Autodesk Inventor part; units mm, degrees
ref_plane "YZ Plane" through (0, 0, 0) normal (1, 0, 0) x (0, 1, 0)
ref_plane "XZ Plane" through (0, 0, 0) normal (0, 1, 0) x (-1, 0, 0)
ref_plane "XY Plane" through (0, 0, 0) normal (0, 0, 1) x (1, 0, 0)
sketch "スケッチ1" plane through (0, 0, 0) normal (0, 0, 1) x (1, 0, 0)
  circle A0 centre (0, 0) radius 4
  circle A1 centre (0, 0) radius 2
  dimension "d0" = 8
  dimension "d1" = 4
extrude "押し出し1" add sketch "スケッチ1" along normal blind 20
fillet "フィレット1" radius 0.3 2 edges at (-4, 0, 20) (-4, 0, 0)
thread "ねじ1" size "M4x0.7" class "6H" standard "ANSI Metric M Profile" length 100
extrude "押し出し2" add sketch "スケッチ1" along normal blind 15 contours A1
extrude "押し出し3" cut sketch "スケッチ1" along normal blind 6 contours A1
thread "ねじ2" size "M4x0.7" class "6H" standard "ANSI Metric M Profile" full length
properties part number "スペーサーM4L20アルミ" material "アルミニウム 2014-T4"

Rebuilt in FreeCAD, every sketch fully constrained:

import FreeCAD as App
import Part
import Sketcher

V = App.Vector


def edges_at(feature, points):
    """Names of the edges that pass closest to the given points."""
    edges = feature.Shape.Edges
    near = lambda p: min(range(len(edges)), key=lambda i: edges[i].distToShape(Part.Vertex(*p))[0])
    return sorted({f"Edge{near(p) + 1}" for p in points})

doc = App.newDocument("Part")
body = doc.addObject("PartDesign::Body", "Body")

sketch1 = body.newObject("Sketcher::SketchObject", "Sketch")
sketch1.AttachmentSupport = (doc.getObject("XY_Plane"), [""])
sketch1.MapMode = "FlatFace"
sketch1.addGeometry([
    Part.Circle(V(0, 0, 0), V(0, 0, 1), 4),
    Part.Circle(V(0, 0, 0), V(0, 0, 1), 2),
], False)
sketch1.addConstraint([
    Sketcher.Constraint("Coincident", 0, 3, -1, 1),
    Sketcher.Constraint("Coincident", 1, 3, -1, 1),
    Sketcher.Constraint("Diameter", 0, 8.0),
    Sketcher.Constraint("Diameter", 1, 4.0),
])
pad1 = body.newObject("PartDesign::Pad", "Pad")
pad1.Profile = sketch1
pad1.Length = 20
doc.recompute()

fillet = body.newObject("PartDesign::Fillet", "Fillet")
fillet.Base = (pad1, edges_at(pad1, [(-4, 0, 20), (-4, 0, 0)]))
fillet.Radius = 0.3

sketch2 = body.newObject("Sketcher::SketchObject", "Sketch001")
sketch2.AttachmentSupport = (doc.getObject("XY_Plane"), [""])
sketch2.MapMode = "FlatFace"
sketch2.addGeometry(Part.Circle(V(0, 0, 0), V(0, 0, 1), 2), False)
sketch2.addConstraint([
    Sketcher.Constraint("Coincident", 0, 3, -1, 1),
    Sketcher.Constraint("Diameter", 0, 4.0),
])
pad2 = body.newObject("PartDesign::Pad", "Pad001")
pad2.Profile = sketch2
pad2.Length = 15

sketch3 = body.newObject("Sketcher::SketchObject", "Sketch002")
sketch3.AttachmentSupport = (doc.getObject("XY_Plane"), [""])
sketch3.MapMode = "FlatFace"
sketch3.addGeometry(Part.Circle(V(0, 0, 0), V(0, 0, 1), 2), False)
sketch3.addConstraint([
    Sketcher.Constraint("Coincident", 0, 3, -1, 1),
    Sketcher.Constraint("Diameter", 0, 4.0),
])
pocket1 = body.newObject("PartDesign::Pocket", "Pocket")
pocket1.Profile = sketch3
pocket1.Length = 6
pocket1.Reversed = True

doc.recompute()
